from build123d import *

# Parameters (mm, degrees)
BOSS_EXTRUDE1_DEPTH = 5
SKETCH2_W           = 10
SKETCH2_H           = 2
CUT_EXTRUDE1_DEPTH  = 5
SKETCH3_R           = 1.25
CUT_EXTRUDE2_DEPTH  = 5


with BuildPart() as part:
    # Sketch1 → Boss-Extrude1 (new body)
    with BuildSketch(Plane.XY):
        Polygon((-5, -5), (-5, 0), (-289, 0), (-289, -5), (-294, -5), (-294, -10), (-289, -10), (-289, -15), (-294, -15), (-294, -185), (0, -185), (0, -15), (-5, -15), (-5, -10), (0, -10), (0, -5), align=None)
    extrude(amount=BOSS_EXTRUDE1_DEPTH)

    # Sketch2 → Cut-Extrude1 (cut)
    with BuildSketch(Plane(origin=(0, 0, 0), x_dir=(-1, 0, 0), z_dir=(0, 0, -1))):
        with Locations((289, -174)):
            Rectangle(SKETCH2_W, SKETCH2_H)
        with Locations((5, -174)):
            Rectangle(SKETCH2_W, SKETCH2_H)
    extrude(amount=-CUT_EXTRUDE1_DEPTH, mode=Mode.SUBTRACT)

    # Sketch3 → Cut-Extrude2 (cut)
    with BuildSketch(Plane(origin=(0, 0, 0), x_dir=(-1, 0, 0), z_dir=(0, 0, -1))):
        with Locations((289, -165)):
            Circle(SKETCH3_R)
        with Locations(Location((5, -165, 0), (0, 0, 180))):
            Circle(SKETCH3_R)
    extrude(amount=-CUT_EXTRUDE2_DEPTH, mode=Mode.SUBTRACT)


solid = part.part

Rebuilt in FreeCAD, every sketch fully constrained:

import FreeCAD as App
import Part
import Sketcher
Q = App.Units.Quantity

doc = App.newDocument("Part")
params = doc.addObject("Spreadsheet::Sheet", "Params")
for row, (alias, value) in enumerate([
    ("sketch1_width", "284 mm"),
    ("sketch1_width2", "5 mm"),
    ("sketch1_height", "170 mm"),
    ("pad1_length", "5 mm"),
    ("sketch2_width", "10 mm"),
    ("sketch2_height", "2 mm"),
    ("pocket1_length", "5 mm"),
    ("sketch3_diameter", "2.5 mm"),
    ("pocket2_length", "5 mm"),
], start=1):
    params.set(f"A{row}", alias)
    params.set(f"B{row}", "=" + value)
    params.setAlias(f"B{row}", alias)

body = doc.addObject("PartDesign::Body", "Body")

# Sketch on XY plane
sketch1 = doc.addObject("Sketcher::SketchObject", "Sketch")
body.addObject(sketch1)
sketch1.AttachmentSupport = (doc.XY_Plane, [""])
sketch1.MapMode = "FlatFace"
sketch1.addGeometry([
    Part.LineSegment(App.Vector(-5, -5, 0), App.Vector(-5, 0, 0)),  # 0
    Part.LineSegment(App.Vector(-5, 0, 0), App.Vector(-289, 0, 0)),  # 1
    Part.LineSegment(App.Vector(-289, 0, 0), App.Vector(-289, -5, 0)),  # 2
    Part.LineSegment(App.Vector(-289, -5, 0), App.Vector(-294, -5, 0)),  # 3
    Part.LineSegment(App.Vector(-294, -5, 0), App.Vector(-294, -10, 0)),  # 4
    Part.LineSegment(App.Vector(-294, -10, 0), App.Vector(-289, -10, 0)),  # 5
    Part.LineSegment(App.Vector(-289, -10, 0), App.Vector(-289, -15, 0)),  # 6
    Part.LineSegment(App.Vector(-289, -15, 0), App.Vector(-294, -15, 0)),  # 7
    Part.LineSegment(App.Vector(-294, -15, 0), App.Vector(-294, -185, 0)),  # 8
    Part.LineSegment(App.Vector(-294, -185, 0), App.Vector(0, -185, 0)),  # 9
    Part.LineSegment(App.Vector(0, -185, 0), App.Vector(0, -15, 0)),  # 10
    Part.LineSegment(App.Vector(0, -15, 0), App.Vector(-5, -15, 0)),  # 11
    Part.LineSegment(App.Vector(-5, -15, 0), App.Vector(-5, -10, 0)),  # 12
    Part.LineSegment(App.Vector(-5, -10, 0), App.Vector(0, -10, 0)),  # 13
    Part.LineSegment(App.Vector(0, -10, 0), App.Vector(0, -5, 0)),  # 14
    Part.LineSegment(App.Vector(0, -5, 0), App.Vector(-5, -5, 0)),  # 15
], False)
sketch1.addConstraint([
    Sketcher.Constraint("Coincident", 0, 2, 1, 1),
    Sketcher.Constraint("Coincident", 1, 2, 2, 1),
    Sketcher.Constraint("Coincident", 2, 2, 3, 1),
    Sketcher.Constraint("Coincident", 3, 2, 4, 1),
    Sketcher.Constraint("Coincident", 4, 2, 5, 1),
    Sketcher.Constraint("Coincident", 5, 2, 6, 1),
    Sketcher.Constraint("Coincident", 6, 2, 7, 1),
    Sketcher.Constraint("Coincident", 7, 2, 8, 1),
    Sketcher.Constraint("Coincident", 8, 2, 9, 1),
    Sketcher.Constraint("Coincident", 9, 2, 10, 1),
    Sketcher.Constraint("Coincident", 10, 2, 11, 1),
    Sketcher.Constraint("Coincident", 11, 2, 12, 1),
    Sketcher.Constraint("Coincident", 12, 2, 13, 1),
    Sketcher.Constraint("Coincident", 13, 2, 14, 1),
    Sketcher.Constraint("Coincident", 14, 2, 15, 1),
    Sketcher.Constraint("Coincident", 15, 2, 0, 1),
    Sketcher.Constraint("Vertical", 0),
    Sketcher.Constraint("Horizontal", 1),
    Sketcher.Constraint("Vertical", 2),
    Sketcher.Constraint("Horizontal", 3),
    Sketcher.Constraint("Vertical", 4),
    Sketcher.Constraint("Horizontal", 5),
    Sketcher.Constraint("Vertical", 6),
    Sketcher.Constraint("Horizontal", 7),
    Sketcher.Constraint("Vertical", 8),
    Sketcher.Constraint("Horizontal", 9),
    Sketcher.Constraint("Vertical", 10),
    Sketcher.Constraint("Horizontal", 11),
    Sketcher.Constraint("Vertical", 12),
    Sketcher.Constraint("Horizontal", 13),
    Sketcher.Constraint("Vertical", 14),
    Sketcher.Constraint("Horizontal", 15),
    Sketcher.Constraint("PointOnObject", 0, 2, -1),
    Sketcher.Constraint("PointOnObject", 9, 2, -2),
    Sketcher.Constraint("PointOnObject", 13, 2, -2),
    Sketcher.Constraint("Horizontal", 7, 2, 10, 2),
    Sketcher.Constraint("Horizontal", 5, 2, 12, 2),
    Sketcher.Constraint("Horizontal", 3, 2, 14, 2),
    Sketcher.Constraint("Vertical", 2, 2, 5, 2),
    Sketcher.Constraint("Vertical", 4, 2, 7, 2),
    Sketcher.Constraint("Vertical", 0, 2, 11, 2),
    Sketcher.Constraint("Equal", 7, 11),
    Sketcher.Constraint("Equal", 15, 0),
    Sketcher.Constraint("Equal", 2, 4),
    Sketcher.Constraint("Equal", 4, 6),
    Sketcher.Constraint("DistanceX", 1, 2, 1, 1, Q("284 mm")),
    Sketcher.Constraint("DistanceX", 3, 2, 3, 1, Q("5 mm")),
    Sketcher.Constraint("DistanceY", 8, 2, 8, 1, Q("170 mm")),
])
sketch1.setExpression("Constraints[45]", "Params.sketch1_width")
sketch1.setExpression("Constraints[46]", "Params.sketch1_width2")
sketch1.setExpression("Constraints[47]", "Params.sketch1_height")
pad1 = doc.addObject("PartDesign::Pad", "Pad")
body.addObject(pad1)
pad1.Profile = sketch1
pad1.setExpression("Length", "Params.pad1_length")

# Sketch on XY plane
sketch2 = doc.addObject("Sketcher::SketchObject", "Sketch001")
body.addObject(sketch2)
sketch2.AttachmentSupport = (doc.XY_Plane, [""])
sketch2.MapMode = "FlatFace"
sketch2.addGeometry([
    Part.LineSegment(App.Vector(-284, -173, 0), App.Vector(-284, -175, 0)),  # 0
    Part.LineSegment(App.Vector(-284, -175, 0), App.Vector(-294, -175, 0)),  # 1
    Part.LineSegment(App.Vector(-294, -175, 0), App.Vector(-294, -173, 0)),  # 2
    Part.LineSegment(App.Vector(-294, -173, 0), App.Vector(-284, -173, 0)),  # 3
    Part.LineSegment(App.Vector(0, -173, 0), App.Vector(0, -175, 0)),  # 4
    Part.LineSegment(App.Vector(0, -175, 0), App.Vector(-10, -175, 0)),  # 5
    Part.LineSegment(App.Vector(-10, -175, 0), App.Vector(-10, -173, 0)),  # 6
    Part.LineSegment(App.Vector(-10, -173, 0), App.Vector(0, -173, 0)),  # 7
], False)
sketch2.addConstraint([
    Sketcher.Constraint("Coincident", 0, 2, 1, 1),
    Sketcher.Constraint("Coincident", 1, 2, 2, 1),
    Sketcher.Constraint("Coincident", 2, 2, 3, 1),
    Sketcher.Constraint("Coincident", 3, 2, 0, 1),
    Sketcher.Constraint("Coincident", 4, 2, 5, 1),
    Sketcher.Constraint("Coincident", 5, 2, 6, 1),
    Sketcher.Constraint("Coincident", 6, 2, 7, 1),
    Sketcher.Constraint("Coincident", 7, 2, 4, 1),
    Sketcher.Constraint("Vertical", 0),
    Sketcher.Constraint("Horizontal", 1),
    Sketcher.Constraint("Vertical", 2),
    Sketcher.Constraint("Horizontal", 3),
    Sketcher.Constraint("Vertical", 4),
    Sketcher.Constraint("Horizontal", 5),
    Sketcher.Constraint("Vertical", 6),
    Sketcher.Constraint("Horizontal", 7),
    Sketcher.Constraint("PointOnObject", 4, 2, -2),
    Sketcher.Constraint("Horizontal", 1, 2, 4, 2),
    Sketcher.Constraint("Horizontal", 3, 2, 6, 2),
    Sketcher.Constraint("Equal", 3, 5),
    Sketcher.Constraint("DistanceX", 1, 2, 1, 1, Q("10 mm")),
    Sketcher.Constraint("DistanceY", 0, 2, 0, 1, Q("2 mm")),
    Sketcher.Constraint("DistanceX", 0, 2, -1, 1, Q("284 mm")),
    Sketcher.Constraint("DistanceY", 0, 2, -1, 1, Q("175 mm")),
])
sketch2.setExpression("Constraints[20]", "Params.sketch2_width")
sketch2.setExpression("Constraints[21]", "Params.sketch2_height")
pocket1 = doc.addObject("PartDesign::Pocket", "Pocket")
body.addObject(pocket1)
pocket1.Profile = sketch2
pocket1.setExpression("Length", "Params.pocket1_length")
pocket1.Reversed = True

# Sketch on XY plane
sketch3 = doc.addObject("Sketcher::SketchObject", "Sketch002")
body.addObject(sketch3)
sketch3.AttachmentSupport = (doc.XY_Plane, [""])
sketch3.MapMode = "FlatFace"
sketch3.addGeometry([
    Part.Circle(App.Vector(-289, -165, 0), App.Vector(0, 0, 1), 1.2),
    Part.Circle(App.Vector(-5, -165, 0), App.Vector(0, 0, 1), 1.2),
], False)
sketch3.addConstraint([
    Sketcher.Constraint("Equal", 0, 1),
    Sketcher.Constraint("Horizontal", 0, 3, 1, 3),
    Sketcher.Constraint("Diameter", 0, Q("2.5 mm")),
    Sketcher.Constraint("DistanceX", 0, 3, -1, 1, Q("289 mm")),
    Sketcher.Constraint("DistanceY", 0, 3, -1, 1, Q("165 mm")),
    Sketcher.Constraint("DistanceX", 1, 3, -1, 1, Q("5 mm")),
])
sketch3.setExpression("Constraints[2]", "Params.sketch3_diameter")
pocket2 = doc.addObject("PartDesign::Pocket", "Pocket001")
body.addObject(pocket2)
pocket2.Profile = sketch3
pocket2.setExpression("Length", "Params.pocket2_length")
pocket2.Reversed = True

doc.recompute()
